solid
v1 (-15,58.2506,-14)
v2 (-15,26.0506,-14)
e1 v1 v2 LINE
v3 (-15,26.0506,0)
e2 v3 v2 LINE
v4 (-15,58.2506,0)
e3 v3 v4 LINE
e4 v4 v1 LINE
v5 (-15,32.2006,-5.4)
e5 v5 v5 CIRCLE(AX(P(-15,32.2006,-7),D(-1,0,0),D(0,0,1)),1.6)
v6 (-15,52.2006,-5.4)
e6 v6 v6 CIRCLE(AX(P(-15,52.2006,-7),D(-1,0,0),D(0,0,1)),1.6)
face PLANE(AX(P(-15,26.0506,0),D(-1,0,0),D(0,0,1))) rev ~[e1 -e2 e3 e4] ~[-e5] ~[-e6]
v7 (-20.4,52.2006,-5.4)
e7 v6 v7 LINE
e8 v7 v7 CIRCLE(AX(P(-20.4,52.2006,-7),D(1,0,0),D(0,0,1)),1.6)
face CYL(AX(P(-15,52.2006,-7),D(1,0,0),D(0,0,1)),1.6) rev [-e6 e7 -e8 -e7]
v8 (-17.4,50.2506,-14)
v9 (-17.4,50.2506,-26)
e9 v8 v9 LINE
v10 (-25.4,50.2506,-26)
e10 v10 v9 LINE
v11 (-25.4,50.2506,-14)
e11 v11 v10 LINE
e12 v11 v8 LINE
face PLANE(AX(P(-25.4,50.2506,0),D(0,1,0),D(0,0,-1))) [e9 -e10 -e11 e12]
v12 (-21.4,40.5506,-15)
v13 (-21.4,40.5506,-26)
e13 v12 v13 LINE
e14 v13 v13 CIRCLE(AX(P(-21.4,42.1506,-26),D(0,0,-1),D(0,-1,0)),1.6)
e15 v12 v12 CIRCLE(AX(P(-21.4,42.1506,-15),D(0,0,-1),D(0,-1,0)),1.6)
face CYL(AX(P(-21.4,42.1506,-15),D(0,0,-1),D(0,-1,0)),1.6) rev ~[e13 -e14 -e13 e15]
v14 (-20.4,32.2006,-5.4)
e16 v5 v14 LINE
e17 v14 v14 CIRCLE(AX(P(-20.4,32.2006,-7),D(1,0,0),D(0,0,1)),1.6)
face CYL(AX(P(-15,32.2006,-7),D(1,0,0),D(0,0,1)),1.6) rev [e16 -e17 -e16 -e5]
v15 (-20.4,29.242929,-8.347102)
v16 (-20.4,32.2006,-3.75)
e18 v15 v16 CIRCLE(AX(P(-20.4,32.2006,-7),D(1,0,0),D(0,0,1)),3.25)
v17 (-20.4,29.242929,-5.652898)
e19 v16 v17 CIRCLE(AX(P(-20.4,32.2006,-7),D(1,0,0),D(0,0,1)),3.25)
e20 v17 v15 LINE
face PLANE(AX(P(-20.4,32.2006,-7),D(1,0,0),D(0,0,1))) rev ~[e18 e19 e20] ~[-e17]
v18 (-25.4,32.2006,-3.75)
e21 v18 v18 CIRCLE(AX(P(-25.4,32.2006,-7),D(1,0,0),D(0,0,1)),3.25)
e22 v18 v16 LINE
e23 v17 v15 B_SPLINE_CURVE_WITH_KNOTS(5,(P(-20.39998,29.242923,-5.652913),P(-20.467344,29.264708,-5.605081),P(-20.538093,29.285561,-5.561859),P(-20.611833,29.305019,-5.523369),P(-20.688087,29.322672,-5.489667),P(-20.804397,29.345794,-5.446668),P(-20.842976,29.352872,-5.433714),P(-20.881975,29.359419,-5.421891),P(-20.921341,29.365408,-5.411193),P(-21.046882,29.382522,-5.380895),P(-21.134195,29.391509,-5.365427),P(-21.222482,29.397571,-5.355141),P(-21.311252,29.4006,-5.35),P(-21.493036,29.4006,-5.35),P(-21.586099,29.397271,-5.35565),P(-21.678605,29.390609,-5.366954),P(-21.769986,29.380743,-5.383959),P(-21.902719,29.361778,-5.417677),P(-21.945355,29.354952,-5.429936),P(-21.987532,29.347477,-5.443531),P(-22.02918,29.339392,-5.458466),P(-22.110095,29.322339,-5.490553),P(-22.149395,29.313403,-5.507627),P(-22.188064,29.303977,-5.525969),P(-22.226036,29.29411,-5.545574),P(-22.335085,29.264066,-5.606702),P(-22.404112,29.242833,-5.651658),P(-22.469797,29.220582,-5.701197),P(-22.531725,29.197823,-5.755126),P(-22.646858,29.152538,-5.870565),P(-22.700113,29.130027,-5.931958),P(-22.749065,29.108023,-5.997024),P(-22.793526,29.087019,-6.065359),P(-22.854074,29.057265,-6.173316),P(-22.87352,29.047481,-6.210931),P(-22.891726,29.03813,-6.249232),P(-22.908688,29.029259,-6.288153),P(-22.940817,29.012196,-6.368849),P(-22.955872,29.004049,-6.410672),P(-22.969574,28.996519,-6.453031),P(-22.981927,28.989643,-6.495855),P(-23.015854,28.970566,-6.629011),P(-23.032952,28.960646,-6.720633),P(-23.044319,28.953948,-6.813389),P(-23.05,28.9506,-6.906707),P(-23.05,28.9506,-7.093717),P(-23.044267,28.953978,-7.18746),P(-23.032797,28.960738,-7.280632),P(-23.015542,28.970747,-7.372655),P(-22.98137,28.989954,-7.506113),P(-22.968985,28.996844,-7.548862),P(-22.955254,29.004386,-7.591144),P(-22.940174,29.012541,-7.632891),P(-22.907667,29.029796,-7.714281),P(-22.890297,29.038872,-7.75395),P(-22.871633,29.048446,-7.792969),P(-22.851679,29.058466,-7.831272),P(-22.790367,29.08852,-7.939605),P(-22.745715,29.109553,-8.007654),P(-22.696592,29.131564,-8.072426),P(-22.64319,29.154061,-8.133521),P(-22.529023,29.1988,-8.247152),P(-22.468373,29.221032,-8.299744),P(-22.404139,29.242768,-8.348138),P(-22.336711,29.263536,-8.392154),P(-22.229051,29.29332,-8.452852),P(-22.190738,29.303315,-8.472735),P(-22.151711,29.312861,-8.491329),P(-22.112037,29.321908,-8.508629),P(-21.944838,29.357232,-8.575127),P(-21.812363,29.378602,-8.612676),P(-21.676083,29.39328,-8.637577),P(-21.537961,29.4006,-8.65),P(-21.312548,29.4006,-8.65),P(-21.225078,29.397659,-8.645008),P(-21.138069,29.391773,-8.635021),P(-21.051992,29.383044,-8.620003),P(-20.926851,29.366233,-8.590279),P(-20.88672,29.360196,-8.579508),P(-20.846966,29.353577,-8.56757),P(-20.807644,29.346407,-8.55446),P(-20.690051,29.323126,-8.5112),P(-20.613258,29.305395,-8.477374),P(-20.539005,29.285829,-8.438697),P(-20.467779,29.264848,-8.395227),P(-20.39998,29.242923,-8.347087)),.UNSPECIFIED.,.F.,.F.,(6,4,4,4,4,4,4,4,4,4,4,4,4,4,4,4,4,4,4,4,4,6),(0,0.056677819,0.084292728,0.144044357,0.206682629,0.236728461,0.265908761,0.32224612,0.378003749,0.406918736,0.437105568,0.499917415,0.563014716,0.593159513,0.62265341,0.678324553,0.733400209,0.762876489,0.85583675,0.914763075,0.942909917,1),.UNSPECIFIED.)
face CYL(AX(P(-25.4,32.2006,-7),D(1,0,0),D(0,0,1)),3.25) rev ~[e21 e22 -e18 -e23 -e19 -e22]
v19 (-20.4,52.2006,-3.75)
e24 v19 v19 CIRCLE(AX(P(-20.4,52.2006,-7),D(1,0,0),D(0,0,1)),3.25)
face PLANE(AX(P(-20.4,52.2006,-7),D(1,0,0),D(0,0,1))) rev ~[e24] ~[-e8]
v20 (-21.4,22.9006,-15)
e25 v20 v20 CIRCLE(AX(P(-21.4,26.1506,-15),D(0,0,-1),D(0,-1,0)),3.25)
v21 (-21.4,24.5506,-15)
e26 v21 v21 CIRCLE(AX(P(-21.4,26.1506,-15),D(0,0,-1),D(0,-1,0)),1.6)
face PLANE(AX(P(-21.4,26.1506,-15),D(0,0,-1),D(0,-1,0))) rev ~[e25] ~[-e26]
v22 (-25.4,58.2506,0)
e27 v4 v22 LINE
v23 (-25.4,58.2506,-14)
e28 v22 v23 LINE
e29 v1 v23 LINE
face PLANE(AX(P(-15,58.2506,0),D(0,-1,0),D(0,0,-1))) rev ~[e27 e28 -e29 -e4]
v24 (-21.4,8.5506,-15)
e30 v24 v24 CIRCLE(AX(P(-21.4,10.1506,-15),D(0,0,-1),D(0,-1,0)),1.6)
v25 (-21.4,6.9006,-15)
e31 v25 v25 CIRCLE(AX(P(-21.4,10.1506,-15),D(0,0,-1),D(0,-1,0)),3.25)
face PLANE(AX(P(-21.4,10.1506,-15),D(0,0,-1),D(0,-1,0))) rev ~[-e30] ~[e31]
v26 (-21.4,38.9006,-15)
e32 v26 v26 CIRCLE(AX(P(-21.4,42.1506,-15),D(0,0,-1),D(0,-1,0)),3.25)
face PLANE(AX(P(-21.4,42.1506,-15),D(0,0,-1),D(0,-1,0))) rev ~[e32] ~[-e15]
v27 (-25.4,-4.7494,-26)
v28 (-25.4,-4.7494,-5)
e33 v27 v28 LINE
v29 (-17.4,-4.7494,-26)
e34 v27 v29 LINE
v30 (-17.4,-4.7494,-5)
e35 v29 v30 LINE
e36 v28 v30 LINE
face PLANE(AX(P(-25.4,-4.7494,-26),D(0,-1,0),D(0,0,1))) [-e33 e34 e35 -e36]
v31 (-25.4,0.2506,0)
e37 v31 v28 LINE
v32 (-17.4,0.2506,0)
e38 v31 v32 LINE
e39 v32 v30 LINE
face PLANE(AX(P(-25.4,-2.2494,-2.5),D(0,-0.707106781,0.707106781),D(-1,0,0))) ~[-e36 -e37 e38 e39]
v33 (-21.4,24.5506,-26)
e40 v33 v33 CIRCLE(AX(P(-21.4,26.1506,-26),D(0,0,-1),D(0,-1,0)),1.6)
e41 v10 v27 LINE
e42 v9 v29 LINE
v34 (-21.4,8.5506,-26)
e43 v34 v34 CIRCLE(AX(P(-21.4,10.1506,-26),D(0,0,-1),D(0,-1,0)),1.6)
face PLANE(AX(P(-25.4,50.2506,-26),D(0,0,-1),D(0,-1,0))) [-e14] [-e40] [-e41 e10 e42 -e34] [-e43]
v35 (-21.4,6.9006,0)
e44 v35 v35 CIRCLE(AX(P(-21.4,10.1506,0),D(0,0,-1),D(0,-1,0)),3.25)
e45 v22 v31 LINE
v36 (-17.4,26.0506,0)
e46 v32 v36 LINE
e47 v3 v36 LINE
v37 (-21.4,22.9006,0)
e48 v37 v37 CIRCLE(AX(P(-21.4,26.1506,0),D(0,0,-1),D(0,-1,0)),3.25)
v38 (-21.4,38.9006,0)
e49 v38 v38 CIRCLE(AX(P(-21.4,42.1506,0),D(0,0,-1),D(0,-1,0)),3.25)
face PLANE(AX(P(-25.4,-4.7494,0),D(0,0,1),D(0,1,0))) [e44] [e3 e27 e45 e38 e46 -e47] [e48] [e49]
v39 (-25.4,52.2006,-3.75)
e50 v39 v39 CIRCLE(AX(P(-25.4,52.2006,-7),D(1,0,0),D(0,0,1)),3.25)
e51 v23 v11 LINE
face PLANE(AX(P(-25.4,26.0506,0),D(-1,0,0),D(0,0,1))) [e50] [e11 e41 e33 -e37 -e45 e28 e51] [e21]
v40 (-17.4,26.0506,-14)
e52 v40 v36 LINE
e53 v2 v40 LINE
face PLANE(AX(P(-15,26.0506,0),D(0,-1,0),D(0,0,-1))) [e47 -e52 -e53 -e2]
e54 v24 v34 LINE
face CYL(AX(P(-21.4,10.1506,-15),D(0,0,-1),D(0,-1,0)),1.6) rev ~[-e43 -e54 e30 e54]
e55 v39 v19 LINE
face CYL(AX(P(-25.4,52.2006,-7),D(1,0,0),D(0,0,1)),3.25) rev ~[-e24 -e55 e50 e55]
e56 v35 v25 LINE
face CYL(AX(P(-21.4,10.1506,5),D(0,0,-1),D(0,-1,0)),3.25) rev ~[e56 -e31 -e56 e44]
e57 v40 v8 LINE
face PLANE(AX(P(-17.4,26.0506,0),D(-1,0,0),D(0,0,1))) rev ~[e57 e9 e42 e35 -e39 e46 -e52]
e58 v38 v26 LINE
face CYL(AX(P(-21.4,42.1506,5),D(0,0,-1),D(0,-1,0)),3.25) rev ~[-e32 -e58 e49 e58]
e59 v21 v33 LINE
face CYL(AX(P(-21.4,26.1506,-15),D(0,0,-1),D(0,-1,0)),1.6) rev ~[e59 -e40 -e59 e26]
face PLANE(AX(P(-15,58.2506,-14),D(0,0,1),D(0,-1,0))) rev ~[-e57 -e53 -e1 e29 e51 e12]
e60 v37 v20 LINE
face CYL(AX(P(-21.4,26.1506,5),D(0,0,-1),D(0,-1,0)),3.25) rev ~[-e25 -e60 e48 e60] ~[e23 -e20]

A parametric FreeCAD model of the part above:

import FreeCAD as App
import Part
import Sketcher
Q = App.Units.Quantity


def edges_at(feature, points):
    """Names of the edges that pass closest to the given points."""
    edges = feature.Shape.Edges
    near = lambda p: min(range(len(edges)), key=lambda i: edges[i].distToShape(Part.Vertex(*p))[0])
    return sorted({f"Edge{near(p) + 1}" for p in points})

doc = App.newDocument("Part")
body = doc.addObject("PartDesign::Body", "Body")

# Sketch on YZ plane
sketch1 = body.newObject("Sketcher::SketchObject", "Sketch")
sketch1.AttachmentSupport = (doc.getObject("YZ_Plane"), [""])
sketch1.MapMode = "FlatFace"
sketch1.AttachmentOffset = App.Placement(App.Vector(0, 0, -25.4), App.Rotation())
sketch1.addGeometry([
    Part.LineSegment(App.Vector(-5, 0, 0), App.Vector(50, 0, 0)),
    Part.LineSegment(App.Vector(50, 0, 0), App.Vector(50, -26, 0)),
    Part.LineSegment(App.Vector(50, -26, 0), App.Vector(-5, -26, 0)),
    Part.LineSegment(App.Vector(-5, -26, 0), App.Vector(-5, 0, 0)),
], False)
sketch1.addConstraint([
    Sketcher.Constraint("Coincident", 0, 2, 1, 1),
    Sketcher.Constraint("Coincident", 1, 2, 2, 1),
    Sketcher.Constraint("Coincident", 2, 2, 3, 1),
    Sketcher.Constraint("Coincident", 3, 2, 0, 1),
    Sketcher.Constraint("Horizontal", 0),
    Sketcher.Constraint("Vertical", 1),
    Sketcher.Constraint("Horizontal", 2),
    Sketcher.Constraint("Vertical", 3),
    Sketcher.Constraint("PointOnObject", 0, 2, -1),
    Sketcher.Constraint("DistanceX", 0, 1, 0, 2, Q("55 mm")),
    Sketcher.Constraint("DistanceY", 1, 2, 1, 1, Q("26 mm")),
    Sketcher.Constraint("DistanceX", -1, 1, 0, 2, Q("50.2506 mm")),
])
pad1 = body.newObject("PartDesign::Pad", "Pad")
pad1.Profile = sketch1
pad1.Length = 8

# Sketch on YZ plane
sketch2 = body.newObject("Sketcher::SketchObject", "Sketch001")
sketch2.AttachmentSupport = (doc.getObject("YZ_Plane"), [""])
sketch2.MapMode = "FlatFace"
sketch2.AttachmentOffset = App.Placement(App.Vector(0, 0, -15), App.Rotation())
sketch2.addGeometry([
    Part.LineSegment(App.Vector(58.3, 0, 0), App.Vector(58.3, -14, 0)),  # 0
    Part.LineSegment(App.Vector(58.3, -14, 0), App.Vector(26.1, -14, 0)),  # 1
    Part.LineSegment(App.Vector(26.1, -14, 0), App.Vector(26.1, 0, 0)),  # 2
    Part.LineSegment(App.Vector(26.1, 0, 0), App.Vector(58.3, 0, 0)),  # 3
    Part.Circle(App.Vector(52.2, -7, 0), App.Vector(0, 0, 1), 1.6),  # 4
    Part.Circle(App.Vector(32.2, -7, 0), App.Vector(0, 0, 1), 1.6),  # 5
], False)
sketch2.addConstraint([
    Sketcher.Constraint("Coincident", 0, 2, 1, 1),
    Sketcher.Constraint("Coincident", 1, 2, 2, 1),
    Sketcher.Constraint("Coincident", 2, 2, 3, 1),
    Sketcher.Constraint("Coincident", 3, 2, 0, 1),
    Sketcher.Constraint("Vertical", 0),
    Sketcher.Constraint("Horizontal", 1),
    Sketcher.Constraint("Vertical", 2),
    Sketcher.Constraint("Horizontal", 3),
    Sketcher.Constraint("Equal", 4, 5),
    Sketcher.Constraint("PointOnObject", 2, 2, -1),
    Sketcher.Constraint("Horizontal", 4, 3, 5, 3),
    Sketcher.Constraint("Diameter", 4, Q("3.2 mm")),
    Sketcher.Constraint("DistanceY", 0, 2, 0, 1, Q("14 mm")),
    Sketcher.Constraint("DistanceX", 1, 2, 1, 1, Q("32.2 mm")),
    Sketcher.Constraint("DistanceY", 4, 3, -1, 1, Q("7 mm")),
    Sketcher.Constraint("DistanceX", 5, 3, 4, 3, Q("20 mm")),
    Sketcher.Constraint("DistanceX", 4, 3, 0, 2, Q("6.05 mm")),
    Sketcher.Constraint("DistanceX", -1, 1, 4, 3, Q("52.2006 mm")),
])
pad2 = body.newObject("PartDesign::Pad", "Pad001")
pad2.Profile = sketch2
pad2.Length = 10.4
pad2.Reversed = True

# Sketch on YZ plane
sketch3 = body.newObject("Sketcher::SketchObject", "Sketch002")
sketch3.AttachmentSupport = (doc.getObject("YZ_Plane"), [""])
sketch3.MapMode = "FlatFace"
sketch3.AttachmentOffset = App.Placement(App.Vector(0, 0, -25.4), App.Rotation())
sketch3.addGeometry([
    Part.Circle(App.Vector(32.2, -7, 0), App.Vector(0, 0, 1), 1.6),
    Part.Circle(App.Vector(52.2, -7, 0), App.Vector(0, 0, 1), 1.6),
], False)
sketch3.addConstraint([
    Sketcher.Constraint("Equal", 0, 1),
    Sketcher.Constraint("Horizontal", 0, 3, 1, 3),
    Sketcher.Constraint("Diameter", 0, Q("3.2 mm")),
    Sketcher.Constraint("DistanceY", 0, 3, -1, 1, Q("7 mm")),
    Sketcher.Constraint("DistanceX", 0, 3, 1, 3, Q("20 mm")),
    Sketcher.Constraint("DistanceX", -1, 1, 0, 3, Q("32.2006 mm")),
])
doc.recompute()
hole = body.newObject("PartDesign::Hole", "Hole")
hole.Profile = sketch3
hole.ThreadType = "None"
hole.Diameter = 3.2
hole.DepthType = "ThroughAll"
hole.HoleCutType = "Counterbore"
hole.HoleCutDiameter = 6.5
hole.HoleCutDepth = 5
hole.Reversed = True

# Sketch on XY plane
sketch4 = body.newObject("Sketcher::SketchObject", "Sketch003")
sketch4.AttachmentSupport = (doc.getObject("XY_Plane"), [""])
sketch4.MapMode = "FlatFace"
sketch4.AttachmentOffset = App.Placement(App.Vector(0, 0, 5), App.Rotation())
sketch4.addGeometry([
    Part.Circle(App.Vector(-21.4, 42.2, 0), App.Vector(0, 0, 1), 1.6),
    Part.Circle(App.Vector(-21.4, 26.2, 0), App.Vector(0, 0, 1), 1.6),
    Part.Circle(App.Vector(-21.4, 10.2, 0), App.Vector(0, 0, 1), 1.6),
], False)
sketch4.addConstraint([
    Sketcher.Constraint("Equal", 0, 1),
    Sketcher.Constraint("Equal", 1, 2),
    Sketcher.Constraint("Vertical", 0, 3, 1, 3),
    Sketcher.Constraint("Vertical", 1, 3, 2, 3),
    Sketcher.Constraint("Diameter", 0, Q("3.2 mm")),
    Sketcher.Constraint("DistanceY", 1, 3, 0, 3, Q("16 mm")),
    Sketcher.Constraint("DistanceY", 2, 3, 1, 3, Q("16 mm")),
    Sketcher.Constraint("DistanceX", 0, 3, -1, 1, Q("21.4 mm")),
    Sketcher.Constraint("DistanceY", -1, 1, 0, 3, Q("42.1506 mm")),
])
doc.recompute()
hole2 = body.newObject("PartDesign::Hole", "Hole001")
hole2.Profile = sketch4
hole2.ThreadType = "None"
hole2.Diameter = 3.2
hole2.DepthType = "ThroughAll"
hole2.HoleCutType = "Counterbore"
hole2.HoleCutDiameter = 6.5
hole2.HoleCutDepth = 20
doc.recompute()

chamfer = body.newObject("PartDesign::Chamfer", "Chamfer")
chamfer.Base = (hole2, edges_at(hole2, [(-21.4, -4.749, 0)]))
chamfer.Size = 5

doc.recompute()
